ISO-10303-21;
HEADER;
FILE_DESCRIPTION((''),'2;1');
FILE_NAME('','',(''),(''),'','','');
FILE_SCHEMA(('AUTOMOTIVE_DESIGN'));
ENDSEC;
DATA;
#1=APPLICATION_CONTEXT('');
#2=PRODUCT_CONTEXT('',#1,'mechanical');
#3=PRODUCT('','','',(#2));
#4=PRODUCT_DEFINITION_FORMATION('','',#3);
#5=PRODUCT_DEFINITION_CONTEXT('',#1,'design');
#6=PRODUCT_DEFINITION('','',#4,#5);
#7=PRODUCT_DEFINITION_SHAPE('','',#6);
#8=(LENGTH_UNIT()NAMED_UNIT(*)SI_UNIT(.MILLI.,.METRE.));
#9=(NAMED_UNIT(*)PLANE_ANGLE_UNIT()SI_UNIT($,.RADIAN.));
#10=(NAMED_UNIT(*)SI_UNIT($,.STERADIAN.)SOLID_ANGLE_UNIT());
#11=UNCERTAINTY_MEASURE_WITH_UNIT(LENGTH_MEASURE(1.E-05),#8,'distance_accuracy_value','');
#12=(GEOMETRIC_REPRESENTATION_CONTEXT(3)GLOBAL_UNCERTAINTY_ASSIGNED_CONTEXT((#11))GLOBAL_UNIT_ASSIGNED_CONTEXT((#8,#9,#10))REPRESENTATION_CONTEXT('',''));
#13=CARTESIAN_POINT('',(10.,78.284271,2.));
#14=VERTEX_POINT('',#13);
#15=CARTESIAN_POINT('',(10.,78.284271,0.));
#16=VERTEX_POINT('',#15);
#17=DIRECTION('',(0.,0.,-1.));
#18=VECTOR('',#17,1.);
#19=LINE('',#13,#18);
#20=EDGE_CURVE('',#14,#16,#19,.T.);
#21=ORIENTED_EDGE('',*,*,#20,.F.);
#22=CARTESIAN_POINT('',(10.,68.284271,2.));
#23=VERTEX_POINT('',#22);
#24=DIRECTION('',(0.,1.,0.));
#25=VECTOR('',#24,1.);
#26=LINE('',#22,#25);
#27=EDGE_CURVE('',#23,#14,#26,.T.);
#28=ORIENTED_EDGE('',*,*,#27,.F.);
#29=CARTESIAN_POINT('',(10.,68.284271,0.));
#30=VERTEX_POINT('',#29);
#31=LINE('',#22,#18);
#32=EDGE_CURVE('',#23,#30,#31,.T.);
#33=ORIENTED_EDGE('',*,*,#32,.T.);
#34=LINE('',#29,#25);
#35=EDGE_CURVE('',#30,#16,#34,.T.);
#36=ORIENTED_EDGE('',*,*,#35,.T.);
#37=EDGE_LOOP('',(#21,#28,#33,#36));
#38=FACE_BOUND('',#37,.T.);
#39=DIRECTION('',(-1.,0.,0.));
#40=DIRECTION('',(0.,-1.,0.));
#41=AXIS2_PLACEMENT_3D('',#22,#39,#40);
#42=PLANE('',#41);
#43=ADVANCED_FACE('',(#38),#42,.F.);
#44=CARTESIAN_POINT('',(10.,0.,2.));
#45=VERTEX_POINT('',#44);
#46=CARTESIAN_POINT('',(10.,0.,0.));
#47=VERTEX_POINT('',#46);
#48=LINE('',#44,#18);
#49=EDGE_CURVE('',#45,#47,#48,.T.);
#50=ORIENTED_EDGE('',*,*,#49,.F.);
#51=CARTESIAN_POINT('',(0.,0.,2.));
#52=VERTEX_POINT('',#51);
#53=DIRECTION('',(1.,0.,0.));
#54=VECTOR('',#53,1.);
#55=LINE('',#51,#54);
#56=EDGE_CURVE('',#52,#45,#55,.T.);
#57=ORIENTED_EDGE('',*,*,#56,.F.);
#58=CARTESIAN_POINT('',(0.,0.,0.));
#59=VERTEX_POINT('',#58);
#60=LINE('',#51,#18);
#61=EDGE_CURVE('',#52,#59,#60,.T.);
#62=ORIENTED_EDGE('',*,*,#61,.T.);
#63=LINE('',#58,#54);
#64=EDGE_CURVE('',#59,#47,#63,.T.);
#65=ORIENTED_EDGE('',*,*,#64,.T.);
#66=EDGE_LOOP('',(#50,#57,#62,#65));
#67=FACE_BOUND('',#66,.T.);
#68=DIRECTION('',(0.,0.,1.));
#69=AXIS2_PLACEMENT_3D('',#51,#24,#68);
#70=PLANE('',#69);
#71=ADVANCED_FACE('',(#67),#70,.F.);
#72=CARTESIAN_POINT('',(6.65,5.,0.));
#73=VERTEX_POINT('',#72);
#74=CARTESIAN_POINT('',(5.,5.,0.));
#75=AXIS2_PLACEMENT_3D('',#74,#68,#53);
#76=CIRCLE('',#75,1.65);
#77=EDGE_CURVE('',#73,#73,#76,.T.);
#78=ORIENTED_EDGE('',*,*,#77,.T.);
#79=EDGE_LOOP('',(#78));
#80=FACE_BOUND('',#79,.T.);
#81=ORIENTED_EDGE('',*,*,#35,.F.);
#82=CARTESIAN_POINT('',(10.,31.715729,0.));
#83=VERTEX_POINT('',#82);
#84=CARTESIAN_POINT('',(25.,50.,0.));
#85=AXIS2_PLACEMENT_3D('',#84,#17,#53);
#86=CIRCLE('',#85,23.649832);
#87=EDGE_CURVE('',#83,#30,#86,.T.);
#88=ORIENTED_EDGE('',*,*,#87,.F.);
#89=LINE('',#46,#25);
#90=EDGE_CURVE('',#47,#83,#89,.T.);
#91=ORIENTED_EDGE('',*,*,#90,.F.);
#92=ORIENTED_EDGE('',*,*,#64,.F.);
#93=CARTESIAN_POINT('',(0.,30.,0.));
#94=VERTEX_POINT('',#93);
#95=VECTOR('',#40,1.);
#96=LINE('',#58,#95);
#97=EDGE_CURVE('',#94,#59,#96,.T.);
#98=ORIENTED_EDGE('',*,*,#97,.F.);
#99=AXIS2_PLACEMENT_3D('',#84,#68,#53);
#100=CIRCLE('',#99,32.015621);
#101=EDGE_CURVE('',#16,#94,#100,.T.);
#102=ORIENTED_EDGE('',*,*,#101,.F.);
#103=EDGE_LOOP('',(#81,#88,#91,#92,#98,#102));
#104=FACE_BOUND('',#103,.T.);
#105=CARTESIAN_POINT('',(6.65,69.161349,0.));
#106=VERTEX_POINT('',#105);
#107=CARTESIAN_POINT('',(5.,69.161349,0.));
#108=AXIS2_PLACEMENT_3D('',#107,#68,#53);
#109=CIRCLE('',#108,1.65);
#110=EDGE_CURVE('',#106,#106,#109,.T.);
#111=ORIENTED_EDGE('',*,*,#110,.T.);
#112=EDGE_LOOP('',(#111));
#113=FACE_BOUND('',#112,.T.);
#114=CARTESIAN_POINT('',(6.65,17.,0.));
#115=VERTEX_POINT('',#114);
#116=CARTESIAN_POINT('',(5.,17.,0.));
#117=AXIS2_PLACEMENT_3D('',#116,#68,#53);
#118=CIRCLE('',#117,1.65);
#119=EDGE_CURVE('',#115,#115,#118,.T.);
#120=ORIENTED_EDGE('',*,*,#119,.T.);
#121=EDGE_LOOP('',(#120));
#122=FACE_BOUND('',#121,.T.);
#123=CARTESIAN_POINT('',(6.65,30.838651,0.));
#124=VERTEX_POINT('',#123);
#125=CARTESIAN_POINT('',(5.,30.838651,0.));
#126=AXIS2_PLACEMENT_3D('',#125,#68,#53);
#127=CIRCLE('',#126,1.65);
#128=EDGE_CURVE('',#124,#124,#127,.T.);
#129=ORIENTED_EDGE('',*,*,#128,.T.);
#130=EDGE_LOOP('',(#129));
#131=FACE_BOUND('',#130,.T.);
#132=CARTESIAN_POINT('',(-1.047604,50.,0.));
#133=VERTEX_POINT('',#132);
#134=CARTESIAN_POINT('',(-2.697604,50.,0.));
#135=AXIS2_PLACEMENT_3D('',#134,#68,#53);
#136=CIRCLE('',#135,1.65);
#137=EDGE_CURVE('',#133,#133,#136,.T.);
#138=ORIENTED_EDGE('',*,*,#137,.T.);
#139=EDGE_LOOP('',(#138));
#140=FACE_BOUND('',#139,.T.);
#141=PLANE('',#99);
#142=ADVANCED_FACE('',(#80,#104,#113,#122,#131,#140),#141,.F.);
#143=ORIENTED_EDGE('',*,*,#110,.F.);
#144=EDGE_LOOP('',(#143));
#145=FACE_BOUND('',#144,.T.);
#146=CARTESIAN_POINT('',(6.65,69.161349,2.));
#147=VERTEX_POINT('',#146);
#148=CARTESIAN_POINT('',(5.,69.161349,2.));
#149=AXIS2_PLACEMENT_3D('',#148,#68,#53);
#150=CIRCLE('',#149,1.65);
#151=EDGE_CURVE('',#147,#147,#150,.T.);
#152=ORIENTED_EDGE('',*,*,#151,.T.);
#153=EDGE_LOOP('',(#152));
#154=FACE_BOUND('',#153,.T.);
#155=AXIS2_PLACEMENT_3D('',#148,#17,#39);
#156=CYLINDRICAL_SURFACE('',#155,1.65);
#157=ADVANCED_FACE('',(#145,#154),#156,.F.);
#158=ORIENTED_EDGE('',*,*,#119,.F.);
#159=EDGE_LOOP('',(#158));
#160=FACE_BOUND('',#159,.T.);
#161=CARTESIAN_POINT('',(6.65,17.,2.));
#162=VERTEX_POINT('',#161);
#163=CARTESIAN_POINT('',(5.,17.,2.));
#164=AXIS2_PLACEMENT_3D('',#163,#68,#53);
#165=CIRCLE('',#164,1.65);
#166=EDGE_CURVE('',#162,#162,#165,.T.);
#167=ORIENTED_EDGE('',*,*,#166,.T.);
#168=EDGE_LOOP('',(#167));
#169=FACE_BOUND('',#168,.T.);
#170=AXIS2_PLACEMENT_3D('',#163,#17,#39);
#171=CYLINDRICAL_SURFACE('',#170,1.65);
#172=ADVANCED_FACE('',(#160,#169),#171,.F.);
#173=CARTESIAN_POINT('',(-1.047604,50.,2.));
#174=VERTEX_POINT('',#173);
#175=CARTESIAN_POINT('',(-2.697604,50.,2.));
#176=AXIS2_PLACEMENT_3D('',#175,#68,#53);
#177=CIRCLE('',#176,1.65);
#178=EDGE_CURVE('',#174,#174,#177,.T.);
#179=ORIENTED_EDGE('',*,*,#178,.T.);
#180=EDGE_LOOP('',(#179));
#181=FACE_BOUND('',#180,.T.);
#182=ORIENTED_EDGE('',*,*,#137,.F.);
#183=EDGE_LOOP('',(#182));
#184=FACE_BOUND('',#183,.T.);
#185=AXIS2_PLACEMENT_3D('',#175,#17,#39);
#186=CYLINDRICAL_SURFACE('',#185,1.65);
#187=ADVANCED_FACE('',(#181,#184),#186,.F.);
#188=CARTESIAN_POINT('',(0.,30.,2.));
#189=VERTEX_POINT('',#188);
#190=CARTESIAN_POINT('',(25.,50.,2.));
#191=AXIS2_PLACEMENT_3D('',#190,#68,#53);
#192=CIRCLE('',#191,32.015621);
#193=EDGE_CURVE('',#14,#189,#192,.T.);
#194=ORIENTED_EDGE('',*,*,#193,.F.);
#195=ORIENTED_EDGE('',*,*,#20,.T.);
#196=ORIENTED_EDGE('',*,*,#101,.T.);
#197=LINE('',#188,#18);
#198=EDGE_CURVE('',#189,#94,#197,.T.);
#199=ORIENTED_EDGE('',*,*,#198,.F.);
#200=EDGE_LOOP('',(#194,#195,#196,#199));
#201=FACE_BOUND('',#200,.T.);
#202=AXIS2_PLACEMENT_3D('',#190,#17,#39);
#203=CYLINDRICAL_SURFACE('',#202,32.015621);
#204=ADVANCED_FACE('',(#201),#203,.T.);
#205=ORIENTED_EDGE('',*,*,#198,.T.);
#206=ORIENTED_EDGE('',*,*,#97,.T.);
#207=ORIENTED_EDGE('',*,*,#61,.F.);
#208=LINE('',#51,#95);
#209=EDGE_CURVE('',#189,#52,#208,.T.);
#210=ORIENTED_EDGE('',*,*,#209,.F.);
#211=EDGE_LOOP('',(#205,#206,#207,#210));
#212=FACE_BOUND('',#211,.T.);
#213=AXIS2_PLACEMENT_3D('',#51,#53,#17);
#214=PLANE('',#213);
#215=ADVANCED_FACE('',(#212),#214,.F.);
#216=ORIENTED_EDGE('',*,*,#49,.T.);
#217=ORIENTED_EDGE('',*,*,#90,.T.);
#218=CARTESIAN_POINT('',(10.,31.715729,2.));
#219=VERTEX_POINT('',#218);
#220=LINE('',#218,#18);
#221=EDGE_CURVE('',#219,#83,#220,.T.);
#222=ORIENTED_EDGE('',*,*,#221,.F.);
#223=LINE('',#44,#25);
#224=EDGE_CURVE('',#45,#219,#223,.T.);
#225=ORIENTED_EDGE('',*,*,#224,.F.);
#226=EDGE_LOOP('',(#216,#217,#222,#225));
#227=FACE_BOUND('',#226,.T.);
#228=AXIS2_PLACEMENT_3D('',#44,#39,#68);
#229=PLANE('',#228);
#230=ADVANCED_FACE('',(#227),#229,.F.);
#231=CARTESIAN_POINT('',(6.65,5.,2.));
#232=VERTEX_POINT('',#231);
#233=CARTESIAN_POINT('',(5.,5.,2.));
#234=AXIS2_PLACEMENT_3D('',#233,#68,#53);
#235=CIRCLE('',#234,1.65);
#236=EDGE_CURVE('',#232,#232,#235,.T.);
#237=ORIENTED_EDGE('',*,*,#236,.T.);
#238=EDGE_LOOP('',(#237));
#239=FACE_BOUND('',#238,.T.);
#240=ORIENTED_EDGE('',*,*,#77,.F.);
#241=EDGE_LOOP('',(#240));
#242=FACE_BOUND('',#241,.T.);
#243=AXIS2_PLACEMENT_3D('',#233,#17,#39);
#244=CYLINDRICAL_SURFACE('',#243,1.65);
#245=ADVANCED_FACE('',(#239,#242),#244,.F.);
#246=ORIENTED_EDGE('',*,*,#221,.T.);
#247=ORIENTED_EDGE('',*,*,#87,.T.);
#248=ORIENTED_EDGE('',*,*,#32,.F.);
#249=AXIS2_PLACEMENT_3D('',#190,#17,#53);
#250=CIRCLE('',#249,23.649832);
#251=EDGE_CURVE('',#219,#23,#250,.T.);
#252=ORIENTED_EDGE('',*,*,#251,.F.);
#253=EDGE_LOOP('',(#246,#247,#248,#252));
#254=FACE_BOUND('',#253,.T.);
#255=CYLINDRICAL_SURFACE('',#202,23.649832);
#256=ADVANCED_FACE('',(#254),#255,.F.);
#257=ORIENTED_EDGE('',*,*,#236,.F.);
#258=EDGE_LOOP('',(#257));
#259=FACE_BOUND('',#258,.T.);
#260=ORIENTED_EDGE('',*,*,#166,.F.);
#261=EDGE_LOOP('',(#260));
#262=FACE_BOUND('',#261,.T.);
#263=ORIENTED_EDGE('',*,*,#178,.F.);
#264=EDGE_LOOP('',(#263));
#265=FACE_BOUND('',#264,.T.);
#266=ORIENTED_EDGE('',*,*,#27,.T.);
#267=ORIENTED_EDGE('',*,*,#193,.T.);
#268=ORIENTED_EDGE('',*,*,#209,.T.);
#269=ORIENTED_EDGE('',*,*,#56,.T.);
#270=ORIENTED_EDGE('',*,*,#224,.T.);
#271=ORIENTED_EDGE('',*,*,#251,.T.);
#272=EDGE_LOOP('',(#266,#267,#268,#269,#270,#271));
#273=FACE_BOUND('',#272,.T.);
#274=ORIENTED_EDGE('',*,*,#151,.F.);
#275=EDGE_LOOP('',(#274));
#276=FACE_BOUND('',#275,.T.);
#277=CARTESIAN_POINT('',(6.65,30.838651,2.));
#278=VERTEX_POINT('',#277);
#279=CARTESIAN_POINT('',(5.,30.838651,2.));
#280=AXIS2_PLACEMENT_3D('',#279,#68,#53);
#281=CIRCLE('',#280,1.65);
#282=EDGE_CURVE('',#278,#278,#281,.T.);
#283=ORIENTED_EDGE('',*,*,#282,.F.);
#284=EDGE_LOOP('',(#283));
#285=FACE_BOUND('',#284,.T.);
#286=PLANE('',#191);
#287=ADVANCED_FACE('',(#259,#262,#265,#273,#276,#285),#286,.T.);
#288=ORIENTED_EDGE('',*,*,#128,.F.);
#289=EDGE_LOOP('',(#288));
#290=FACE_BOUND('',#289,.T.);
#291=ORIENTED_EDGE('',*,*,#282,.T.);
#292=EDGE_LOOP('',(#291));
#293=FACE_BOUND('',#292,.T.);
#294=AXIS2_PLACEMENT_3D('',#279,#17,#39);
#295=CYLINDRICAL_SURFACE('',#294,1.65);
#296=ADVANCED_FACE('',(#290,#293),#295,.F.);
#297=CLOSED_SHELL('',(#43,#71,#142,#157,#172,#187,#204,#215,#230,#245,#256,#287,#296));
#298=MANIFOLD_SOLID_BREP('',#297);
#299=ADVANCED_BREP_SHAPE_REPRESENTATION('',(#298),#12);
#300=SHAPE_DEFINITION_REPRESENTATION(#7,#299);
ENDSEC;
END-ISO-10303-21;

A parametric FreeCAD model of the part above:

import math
import FreeCAD as App
import Part
import Sketcher

V = App.Vector

doc = App.newDocument("Part")
body = doc.addObject("PartDesign::Body", "Body")

# Sketch on XY plane
sketch1 = doc.addObject("Sketcher::SketchObject", "Sketch")
body.addObject(sketch1)
sketch1.AttachmentSupport = (doc.XY_Plane, [""])
sketch1.MapMode = "FlatFace"
sketch1.addGeometry([
    Part.LineSegment(V(10, 68.3, 0), V(10, 78.3, 0)),  # 0
    Part.ArcOfCircle(Part.Circle(V(25, 50, 0), V(0, 0, 1), 32), math.radians(118), math.radians(219)),  # 1
    Part.LineSegment(V(0, 30, 0), V(0, 0, 0)),  # 2
    Part.LineSegment(V(0, 0, 0), V(10, 0, 0)),  # 3
    Part.LineSegment(V(10, 0, 0), V(10, 31.7, 0)),  # 4
    Part.ArcOfCircle(Part.Circle(V(25, 50, 0), V(0, 0, 1), 23.6), math.radians(129), math.radians(231)),  # 5
    Part.Circle(V(5, 5, 0), V(0, 0, 1), 1.6),  # 6
    Part.Circle(V(5, 17, 0), V(0, 0, 1), 1.6),  # 7
    Part.Circle(V(5, 30.8, 0), V(0, 0, 1), 1.6),  # 8
    Part.Circle(V(-2.7, 50, 0), V(0, 0, 1), 1.6),  # 9
    Part.Circle(V(5, 69.2, 0), V(0, 0, 1), 1.6),  # 10
], False)
sketch1.addConstraint([
    Sketcher.Constraint("Coincident", 0, 2, 1, 1),
    Sketcher.Constraint("Coincident", 1, 2, 2, 1),
    Sketcher.Constraint("Coincident", 2, 2, 3, 1),
    Sketcher.Constraint("Coincident", 3, 2, 4, 1),
    Sketcher.Constraint("Coincident", 4, 2, 5, 2),
    Sketcher.Constraint("Coincident", 5, 1, 0, 1),
    Sketcher.Constraint("Vertical", 0),
    Sketcher.Constraint("Vertical", 2),
    Sketcher.Constraint("Horizontal", 3),
    Sketcher.Constraint("Vertical", 4),
    Sketcher.Constraint("Coincident", 2, 2, -1, 1),
    Sketcher.Constraint("Coincident", 5, 3, 1, 3),
    Sketcher.Constraint("Equal", 6, 7),
    Sketcher.Constraint("Equal", 7, 8),
    Sketcher.Constraint("Equal", 8, 9),
    Sketcher.Constraint("Equal", 9, 10),
    Sketcher.Constraint("Horizontal", 5, 3, 9, 3),
    Sketcher.Constraint("Vertical", 6, 3, 7, 3),
    Sketcher.Constraint("Vertical", 7, 3, 8, 3),
    Sketcher.Constraint("Vertical", 8, 3, 10, 3),
    Sketcher.Constraint("Vertical", 0, 2, 3, 2),
    Sketcher.Constraint("Equal", 3, 0),
    Sketcher.Constraint("Diameter", 6, 3.3),
    Sketcher.Constraint("DistanceX", 3, 1, 3, 2, 10.0),
    Sketcher.Constraint("DistanceY", 2, 2, 2, 1, 30.0),
    Sketcher.Constraint("DistanceX", -1, 1, 1, 3, 25.0),
    Sketcher.Constraint("DistanceY", -1, 1, 1, 3, 50.0),
    Sketcher.Constraint("DistanceX", -1, 1, 6, 3, 5.0),
    Sketcher.Constraint("DistanceY", -1, 1, 6, 3, 5.0),
    Sketcher.Constraint("DistanceY", -1, 1, 7, 3, 17.0),
    Sketcher.Constraint("DistanceY", -1, 1, 8, 3, 30.838651),
    Sketcher.Constraint("DistanceY", -1, 1, 10, 3, 69.161349),
    Sketcher.Constraint("DistanceX", 9, 3, -1, 1, 2.697604),
])
pad1 = doc.addObject("PartDesign::Pad", "Pad")
body.addObject(pad1)
pad1.Profile = sketch1
pad1.Length = 2

doc.recompute()
